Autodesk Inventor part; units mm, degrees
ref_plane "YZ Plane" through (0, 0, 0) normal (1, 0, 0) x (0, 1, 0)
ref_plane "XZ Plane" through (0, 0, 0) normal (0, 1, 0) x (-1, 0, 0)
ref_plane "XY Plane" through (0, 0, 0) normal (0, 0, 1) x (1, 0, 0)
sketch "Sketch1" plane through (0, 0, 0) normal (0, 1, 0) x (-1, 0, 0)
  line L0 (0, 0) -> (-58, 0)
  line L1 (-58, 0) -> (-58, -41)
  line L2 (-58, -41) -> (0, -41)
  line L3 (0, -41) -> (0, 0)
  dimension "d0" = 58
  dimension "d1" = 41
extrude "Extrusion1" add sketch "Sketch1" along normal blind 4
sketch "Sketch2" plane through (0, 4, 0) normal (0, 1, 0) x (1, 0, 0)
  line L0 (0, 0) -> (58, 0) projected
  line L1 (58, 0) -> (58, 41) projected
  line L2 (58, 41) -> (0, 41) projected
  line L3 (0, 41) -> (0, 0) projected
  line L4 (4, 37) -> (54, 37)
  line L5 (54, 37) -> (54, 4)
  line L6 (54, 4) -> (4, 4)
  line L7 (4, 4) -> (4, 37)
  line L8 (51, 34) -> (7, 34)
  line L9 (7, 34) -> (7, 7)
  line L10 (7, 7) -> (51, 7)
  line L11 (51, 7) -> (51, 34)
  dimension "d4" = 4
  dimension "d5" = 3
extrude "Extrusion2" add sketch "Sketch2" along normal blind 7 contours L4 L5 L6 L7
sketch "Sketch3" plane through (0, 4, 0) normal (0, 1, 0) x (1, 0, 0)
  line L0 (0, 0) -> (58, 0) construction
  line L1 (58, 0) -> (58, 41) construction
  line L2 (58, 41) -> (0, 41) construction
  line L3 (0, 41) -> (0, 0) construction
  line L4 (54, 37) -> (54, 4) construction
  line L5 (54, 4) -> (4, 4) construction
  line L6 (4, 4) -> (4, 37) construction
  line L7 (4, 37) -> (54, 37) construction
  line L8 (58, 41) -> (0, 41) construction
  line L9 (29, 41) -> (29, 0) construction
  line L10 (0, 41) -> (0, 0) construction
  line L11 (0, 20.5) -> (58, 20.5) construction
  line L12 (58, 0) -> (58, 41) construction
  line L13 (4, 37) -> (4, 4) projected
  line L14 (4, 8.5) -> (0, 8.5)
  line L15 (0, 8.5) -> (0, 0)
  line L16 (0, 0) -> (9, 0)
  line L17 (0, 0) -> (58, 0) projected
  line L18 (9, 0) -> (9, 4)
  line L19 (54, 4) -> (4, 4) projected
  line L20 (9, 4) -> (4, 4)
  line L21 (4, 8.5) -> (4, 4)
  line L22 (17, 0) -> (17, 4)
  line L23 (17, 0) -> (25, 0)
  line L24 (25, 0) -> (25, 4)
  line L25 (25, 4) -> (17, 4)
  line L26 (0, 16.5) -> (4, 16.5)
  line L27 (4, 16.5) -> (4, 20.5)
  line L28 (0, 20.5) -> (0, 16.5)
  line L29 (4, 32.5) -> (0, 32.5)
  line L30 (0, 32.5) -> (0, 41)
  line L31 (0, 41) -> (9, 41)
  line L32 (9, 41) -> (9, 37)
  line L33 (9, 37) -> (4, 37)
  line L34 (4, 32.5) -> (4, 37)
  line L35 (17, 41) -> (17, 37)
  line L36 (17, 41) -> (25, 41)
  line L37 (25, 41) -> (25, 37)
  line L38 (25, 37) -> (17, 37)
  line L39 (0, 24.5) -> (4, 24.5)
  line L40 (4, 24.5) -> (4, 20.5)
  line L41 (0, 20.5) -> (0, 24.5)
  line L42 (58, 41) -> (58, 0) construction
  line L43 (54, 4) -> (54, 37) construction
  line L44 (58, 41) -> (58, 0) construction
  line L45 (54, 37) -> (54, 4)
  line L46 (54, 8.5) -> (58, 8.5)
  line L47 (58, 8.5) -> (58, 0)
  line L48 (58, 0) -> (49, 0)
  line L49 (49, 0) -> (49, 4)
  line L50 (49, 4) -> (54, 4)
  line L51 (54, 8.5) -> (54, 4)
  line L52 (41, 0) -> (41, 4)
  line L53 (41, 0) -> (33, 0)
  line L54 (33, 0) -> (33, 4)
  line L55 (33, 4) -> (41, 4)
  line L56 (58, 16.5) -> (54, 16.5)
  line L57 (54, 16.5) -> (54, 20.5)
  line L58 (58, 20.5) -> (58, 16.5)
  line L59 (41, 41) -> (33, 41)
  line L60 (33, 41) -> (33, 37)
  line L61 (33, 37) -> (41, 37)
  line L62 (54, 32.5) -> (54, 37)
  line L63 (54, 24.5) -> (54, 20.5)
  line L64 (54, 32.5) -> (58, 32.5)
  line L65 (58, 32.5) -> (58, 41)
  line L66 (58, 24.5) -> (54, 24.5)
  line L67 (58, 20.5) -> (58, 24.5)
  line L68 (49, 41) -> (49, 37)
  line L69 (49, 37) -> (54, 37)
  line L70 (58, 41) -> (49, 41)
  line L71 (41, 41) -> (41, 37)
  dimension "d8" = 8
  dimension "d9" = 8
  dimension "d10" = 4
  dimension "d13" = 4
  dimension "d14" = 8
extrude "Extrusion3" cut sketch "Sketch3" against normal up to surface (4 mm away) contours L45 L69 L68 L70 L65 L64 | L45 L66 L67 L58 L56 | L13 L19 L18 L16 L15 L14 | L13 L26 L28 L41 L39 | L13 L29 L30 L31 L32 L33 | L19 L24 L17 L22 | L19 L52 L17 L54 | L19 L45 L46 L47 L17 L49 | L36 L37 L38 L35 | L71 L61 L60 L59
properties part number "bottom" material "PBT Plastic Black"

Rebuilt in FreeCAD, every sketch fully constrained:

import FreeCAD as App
import Part
import Sketcher

V = App.Vector
Q = App.Units.Quantity


def add_polygon(sketch, points):
    """Adds a closed chain of lines whose ends are joined by coincident constraints."""
    first, n = sketch.GeometryCount, len(points)
    for a, b in zip(points, points[1:] + points[:1]):
        sketch.addGeometry(Part.LineSegment(App.Vector(*a, 0), App.Vector(*b, 0)), False)
    for i in range(n):
        sketch.addConstraint(Sketcher.Constraint("Coincident", first + i, 2, first + (i + 1) % n, 1))

doc = App.newDocument("Part")
body = doc.addObject("PartDesign::Body", "Body")

sketch1 = body.newObject("Sketcher::SketchObject", "Sketch")
sketch1.AttachmentSupport = (doc.getObject("XZ_Plane"), [""])
sketch1.MapMode = "FlatFace"
add_polygon(sketch1, [(0, -41), (0, 0), (58, 0), (58, -41)])
sketch1.addConstraint([
    Sketcher.Constraint("Vertical", 0),
    Sketcher.Constraint("Horizontal", 1),
    Sketcher.Constraint("Vertical", 2),
    Sketcher.Constraint("Horizontal", 3),
    Sketcher.Constraint("Coincident", 0, 2, -1, 1),
    Sketcher.Constraint("DistanceX", 1, 1, 1, 2, Q("58 mm")),
    Sketcher.Constraint("DistanceY", 0, 1, 0, 2, Q("41 mm")),
])
pad1 = body.newObject("PartDesign::Pad", "Pad")
pad1.Profile = sketch1
pad1.Length = 4
pad1.Reversed = True

sketch2 = body.newObject("Sketcher::SketchObject", "Sketch001")
sketch2.AttachmentSupport = (doc.getObject("XZ_Plane"), [""])
sketch2.MapMode = "FlatFace"
sketch2.AttachmentOffset = App.Placement(V(0, 0, -4), App.Rotation())
add_polygon(sketch2, [(54, -37), (4, -37), (4, -4), (54, -4)])
add_polygon(sketch2, [(7, -34), (51, -34), (51, -7), (7, -7)])
sketch2.addConstraint([
    Sketcher.Constraint("Horizontal", 0),
    Sketcher.Constraint("Vertical", 1),
    Sketcher.Constraint("Horizontal", 2),
    Sketcher.Constraint("Vertical", 3),
    Sketcher.Constraint("Horizontal", 4),
    Sketcher.Constraint("Vertical", 5),
    Sketcher.Constraint("Horizontal", 6),
    Sketcher.Constraint("Vertical", 7),
    Sketcher.Constraint("DistanceX", -1, 1, 0, 2, Q("4 mm")),
    Sketcher.Constraint("DistanceY", 1, 2, -1, 1, Q("4 mm")),
    Sketcher.Constraint("DistanceX", 4, 2, 3, 2, Q("3 mm")),
    Sketcher.Constraint("DistanceY", 3, 2, 4, 2, Q("3 mm")),
    Sketcher.Constraint("DistanceY", 5, 2, 2, 2, Q("3 mm")),
    Sketcher.Constraint("DistanceX", 1, 2, 6, 2, Q("3 mm")),
    Sketcher.Constraint("DistanceX", 0, 2, 0, 1, Q("50 mm")),
    Sketcher.Constraint("DistanceY", 1, 1, 1, 2, Q("33 mm")),
])
pad2 = body.newObject("PartDesign::Pad", "Pad001")
pad2.Profile = sketch2
pad2.Length = 7
pad2.Reversed = True

sketch3 = body.newObject("Sketcher::SketchObject", "Sketch002")
sketch3.AttachmentSupport = (doc.getObject("XZ_Plane"), [""])
sketch3.MapMode = "FlatFace"
sketch3.AttachmentOffset = App.Placement(V(0, 0, -4), App.Rotation())
add_polygon(sketch3, [(54, -37), (54, -32.5), (58, -32.5), (58, -41), (49, -41), (49, -37)])
add_polygon(sketch3, [(54, -24.5), (54, -16.5), (58, -16.5), (58, -24.5)])
add_polygon(sketch3, [(4, -4), (4, -8.5), (0, -8.5), (0, 0), (9, 0), (9, -4)])
add_polygon(sketch3, [(4, -16.5), (4, -24.5), (0, -24.5), (0, -16.5)])
add_polygon(sketch3, [(4, -32.5), (4, -37), (9, -37), (9, -41), (0, -41), (0, -32.5)])
add_polygon(sketch3, [(25, -4), (17, -4), (17, 0), (25, 0)])
add_polygon(sketch3, [(41, -4), (33, -4), (33, 0), (41, 0)])
add_polygon(sketch3, [(54, -4), (49, -4), (49, 0), (58, 0), (58, -8.5), (54, -8.5)])
add_polygon(sketch3, [(25, -41), (17, -41), (17, -37), (25, -37)])
add_polygon(sketch3, [(41, -37), (41, -41), (33, -41), (33, -37)])
sketch3.addConstraint([
    Sketcher.Constraint("Vertical", 0),
    Sketcher.Constraint("Horizontal", 1),
    Sketcher.Constraint("Vertical", 2),
    Sketcher.Constraint("Horizontal", 3),
    Sketcher.Constraint("Vertical", 4),
    Sketcher.Constraint("Horizontal", 5),
    Sketcher.Constraint("Vertical", 6),
    Sketcher.Constraint("Horizontal", 7),
    Sketcher.Constraint("Vertical", 8),
    Sketcher.Constraint("Horizontal", 9),
    Sketcher.Constraint("Vertical", 10),
    Sketcher.Constraint("Horizontal", 11),
    Sketcher.Constraint("Vertical", 12),
    Sketcher.Constraint("Horizontal", 13),
    Sketcher.Constraint("Vertical", 14),
    Sketcher.Constraint("Horizontal", 15),
    Sketcher.Constraint("Vertical", 16),
    Sketcher.Constraint("Horizontal", 17),
    Sketcher.Constraint("Vertical", 18),
    Sketcher.Constraint("Horizontal", 19),
    Sketcher.Constraint("Vertical", 20),
    Sketcher.Constraint("Horizontal", 21),
    Sketcher.Constraint("Vertical", 22),
    Sketcher.Constraint("Horizontal", 23),
    Sketcher.Constraint("Vertical", 24),
    Sketcher.Constraint("Horizontal", 25),
    Sketcher.Constraint("Horizontal", 26),
    Sketcher.Constraint("Vertical", 27),
    Sketcher.Constraint("Horizontal", 28),
    Sketcher.Constraint("Vertical", 29),
    Sketcher.Constraint("Horizontal", 30),
    Sketcher.Constraint("Vertical", 31),
    Sketcher.Constraint("Horizontal", 32),
    Sketcher.Constraint("Vertical", 33),
    Sketcher.Constraint("Horizontal", 34),
    Sketcher.Constraint("Vertical", 35),
    Sketcher.Constraint("Horizontal", 36),
    Sketcher.Constraint("Vertical", 37),
    Sketcher.Constraint("Horizontal", 38),
    Sketcher.Constraint("Vertical", 39),
    Sketcher.Constraint("Horizontal", 40),
    Sketcher.Constraint("Vertical", 41),
    Sketcher.Constraint("Horizontal", 42),
    Sketcher.Constraint("Vertical", 43),
    Sketcher.Constraint("Vertical", 44),
    Sketcher.Constraint("Horizontal", 45),
    Sketcher.Constraint("Vertical", 46),
    Sketcher.Constraint("Horizontal", 47),
    Sketcher.Constraint("Coincident", 12, 2, -1, 1),
    Sketcher.Constraint("PointOnObject", 17, 2, -2),
    Sketcher.Constraint("PointOnObject", 23, 2, -2),
    Sketcher.Constraint("PointOnObject", 27, 2, -1),
    Sketcher.Constraint("PointOnObject", 31, 2, -1),
    Sketcher.Constraint("PointOnObject", 35, 2, -1),
    Sketcher.Constraint("Horizontal", 9, 2, 16, 2),
    Sketcher.Constraint("Horizontal", 7, 2, 18, 2),
    Sketcher.Constraint("Horizontal", 5, 2, 20, 2),
    Sketcher.Constraint("Horizontal", 3, 2, 22, 2),
    Sketcher.Constraint("Horizontal", 1, 2, 24, 2),
    Sketcher.Constraint("Horizontal", 15, 2, 26, 2),
    Sketcher.Constraint("Horizontal", 29, 2, 30, 2),
    Sketcher.Constraint("Horizontal", 33, 2, 34, 2),
    Sketcher.Constraint("Horizontal", 11, 2, 37, 2),
    Sketcher.Constraint("Horizontal", 23, 2, 40, 2),
    Sketcher.Constraint("Horizontal", 21, 2, 41, 2),
    Sketcher.Constraint("Horizontal", 43, 2, 44, 2),
    Sketcher.Constraint("Horizontal", 42, 2, 46, 2),
    Sketcher.Constraint("Vertical", 5, 2, 6, 2),
    Sketcher.Constraint("Vertical", 2, 2, 7, 2),
    Sketcher.Constraint("Vertical", 15, 2, 16, 2),
    Sketcher.Constraint("Vertical", 19, 2, 20, 2),
    Sketcher.Constraint("Vertical", 14, 2, 21, 2),
    Sketcher.Constraint("Vertical", 4, 2, 34, 2),
    Sketcher.Constraint("Vertical", 8, 2, 36, 2),
    Sketcher.Constraint("Vertical", 9, 2, 38, 2),
    Sketcher.Constraint("Vertical", 27, 2, 40, 2),
    Sketcher.Constraint("Vertical", 29, 2, 42, 2),
    Sketcher.Constraint("Vertical", 33, 2, 44, 2),
    Sketcher.Constraint("Vertical", 31, 2, 45, 2),
    Sketcher.Constraint("Equal", 9, 11),
    Sketcher.Constraint("Equal", 3, 13),
    Sketcher.Constraint("Equal", 28, 30),
    Sketcher.Constraint("Equal", 38, 4),
    Sketcher.Constraint("Equal", 47, 6),
    Sketcher.Constraint("Equal", 0, 10),
    Sketcher.Constraint("Equal", 2, 12),
    Sketcher.Constraint("DistanceX", 1, 1, 1, 2, Q("4 mm")),
    Sketcher.Constraint("DistanceX", 26, 2, 26, 1, Q("8 mm")),
    Sketcher.Constraint("DistanceY", 1, 2, 8, 2, Q("8 mm")),
    Sketcher.Constraint("DistanceY", 6, 2, 10, 2, Q("8 mm")),
    Sketcher.Constraint("DistanceX", 14, 2, 26, 2, Q("8 mm")),
    Sketcher.Constraint("DistanceX", 29, 2, 30, 2, Q("8 mm")),
    Sketcher.Constraint("DistanceX", 33, 2, 34, 2, Q("8 mm")),
    Sketcher.Constraint("DistanceX", 3, 2, 3, 1, Q("9 mm")),
    Sketcher.Constraint("DistanceY", 0, 1, 0, 2, Q("4.5 mm")),
])
pocket1 = body.newObject("PartDesign::Pocket", "Pocket")
pocket1.Profile = sketch3
pocket1.Length = 4
pocket1.Reversed = True

doc.recompute()
